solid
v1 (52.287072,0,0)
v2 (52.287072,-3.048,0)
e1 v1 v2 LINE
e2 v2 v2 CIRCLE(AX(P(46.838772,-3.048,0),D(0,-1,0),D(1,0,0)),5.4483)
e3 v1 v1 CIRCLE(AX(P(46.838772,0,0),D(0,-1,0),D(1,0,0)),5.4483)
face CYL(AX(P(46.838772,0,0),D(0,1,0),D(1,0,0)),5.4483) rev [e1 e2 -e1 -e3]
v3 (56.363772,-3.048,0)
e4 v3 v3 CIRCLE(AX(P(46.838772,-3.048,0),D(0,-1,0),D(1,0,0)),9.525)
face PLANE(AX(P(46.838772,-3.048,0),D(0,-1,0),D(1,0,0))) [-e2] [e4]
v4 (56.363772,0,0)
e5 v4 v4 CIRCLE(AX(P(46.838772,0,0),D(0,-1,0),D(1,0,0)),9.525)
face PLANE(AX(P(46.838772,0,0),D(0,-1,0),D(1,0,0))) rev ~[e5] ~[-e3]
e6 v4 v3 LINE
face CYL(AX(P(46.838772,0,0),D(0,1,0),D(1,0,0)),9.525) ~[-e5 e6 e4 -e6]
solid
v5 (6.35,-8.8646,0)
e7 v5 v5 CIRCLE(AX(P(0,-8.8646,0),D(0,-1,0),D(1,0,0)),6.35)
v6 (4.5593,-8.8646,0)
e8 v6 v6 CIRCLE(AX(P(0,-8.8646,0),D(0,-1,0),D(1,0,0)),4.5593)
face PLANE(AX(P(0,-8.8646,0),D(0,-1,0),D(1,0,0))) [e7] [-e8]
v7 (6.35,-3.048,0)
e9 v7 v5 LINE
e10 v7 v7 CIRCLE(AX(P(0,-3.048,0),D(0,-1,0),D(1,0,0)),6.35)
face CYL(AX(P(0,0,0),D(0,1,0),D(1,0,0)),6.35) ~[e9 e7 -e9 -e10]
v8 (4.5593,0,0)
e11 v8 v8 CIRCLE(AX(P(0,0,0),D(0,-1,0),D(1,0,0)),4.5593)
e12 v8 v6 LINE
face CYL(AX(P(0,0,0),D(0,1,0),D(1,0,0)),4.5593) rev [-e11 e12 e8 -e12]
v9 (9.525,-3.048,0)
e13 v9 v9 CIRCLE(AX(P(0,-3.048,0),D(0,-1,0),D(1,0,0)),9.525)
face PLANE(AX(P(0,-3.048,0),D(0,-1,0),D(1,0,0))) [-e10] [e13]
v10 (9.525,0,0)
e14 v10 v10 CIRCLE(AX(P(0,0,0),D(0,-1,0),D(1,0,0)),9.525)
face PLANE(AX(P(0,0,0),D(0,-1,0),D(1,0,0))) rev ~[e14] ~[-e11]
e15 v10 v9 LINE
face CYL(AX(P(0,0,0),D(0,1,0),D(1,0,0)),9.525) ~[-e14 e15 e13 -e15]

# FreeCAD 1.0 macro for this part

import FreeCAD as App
import Part
import Sketcher

V = App.Vector
Q = App.Units.Quantity

doc = App.newDocument("Part")
body = doc.addObject("PartDesign::Body", "Body")
body.AllowCompound = True

# Sketch on XZ plane
sketch1 = doc.addObject("Sketcher::SketchObject", "Sketch")
body.addObject(sketch1)
sketch1.AttachmentSupport = (doc.XZ_Plane, [""])
sketch1.MapMode = "FlatFace"
sketch1.addGeometry([
    Part.Circle(V(0, 0, 0), V(0, 0, 1), 10),
    Part.Circle(V(0, 0, 0), V(0, 0, 1), 6),
    Part.Circle(V(47, 0, 0), V(0, 0, 1), 10),
    Part.Circle(V(47, 0, 0), V(0, 0, 1), 5),
], False)
sketch1.addConstraint([
    Sketcher.Constraint("Coincident", 0, 3, -1, 1),
    Sketcher.Constraint("Coincident", 1, 3, -1, 1),
    Sketcher.Constraint("Coincident", 3, 3, 2, 3),
    Sketcher.Constraint("Equal", 0, 2),
    Sketcher.Constraint("PointOnObject", 2, 3, -1),
    Sketcher.Constraint("Diameter", 1, Q("0.5 in")),
    Sketcher.Constraint("Diameter", 0, Q("0.75 in")),
    Sketcher.Constraint("Diameter", 3, Q("0.429 in")),
    Sketcher.Constraint("DistanceX", -1, 1, 2, 3, 46.838772),
])
pad1 = doc.addObject("PartDesign::Pad", "Pad")
body.addObject(pad1)
pad1.Profile = sketch1
pad1.Length = Q("0.12 in")

# Sketch on XZ plane
sketch2 = doc.addObject("Sketcher::SketchObject", "Sketch001")
body.addObject(sketch2)
sketch2.AttachmentSupport = (doc.XZ_Plane, [""])
sketch2.MapMode = "FlatFace"
sketch2.addGeometry([
    Part.Circle(V(0, 0, 0), V(0, 0, 1), 6.3),
    Part.Circle(V(0, 0, 0), V(0, 0, 1), 4.6),
], False)
sketch2.addConstraint([
    Sketcher.Constraint("Coincident", 0, 3, -1, 1),
    Sketcher.Constraint("Coincident", 1, 3, -1, 1),
    Sketcher.Constraint("Diameter", 0, Q("0.5 in")),
    Sketcher.Constraint("Diameter", 1, Q("0.359 in")),
])
pad2 = doc.addObject("PartDesign::Pad", "Pad001")
body.addObject(pad2)
pad2.Profile = sketch2
pad2.Length = Q("0.349 in")

doc.recompute()
